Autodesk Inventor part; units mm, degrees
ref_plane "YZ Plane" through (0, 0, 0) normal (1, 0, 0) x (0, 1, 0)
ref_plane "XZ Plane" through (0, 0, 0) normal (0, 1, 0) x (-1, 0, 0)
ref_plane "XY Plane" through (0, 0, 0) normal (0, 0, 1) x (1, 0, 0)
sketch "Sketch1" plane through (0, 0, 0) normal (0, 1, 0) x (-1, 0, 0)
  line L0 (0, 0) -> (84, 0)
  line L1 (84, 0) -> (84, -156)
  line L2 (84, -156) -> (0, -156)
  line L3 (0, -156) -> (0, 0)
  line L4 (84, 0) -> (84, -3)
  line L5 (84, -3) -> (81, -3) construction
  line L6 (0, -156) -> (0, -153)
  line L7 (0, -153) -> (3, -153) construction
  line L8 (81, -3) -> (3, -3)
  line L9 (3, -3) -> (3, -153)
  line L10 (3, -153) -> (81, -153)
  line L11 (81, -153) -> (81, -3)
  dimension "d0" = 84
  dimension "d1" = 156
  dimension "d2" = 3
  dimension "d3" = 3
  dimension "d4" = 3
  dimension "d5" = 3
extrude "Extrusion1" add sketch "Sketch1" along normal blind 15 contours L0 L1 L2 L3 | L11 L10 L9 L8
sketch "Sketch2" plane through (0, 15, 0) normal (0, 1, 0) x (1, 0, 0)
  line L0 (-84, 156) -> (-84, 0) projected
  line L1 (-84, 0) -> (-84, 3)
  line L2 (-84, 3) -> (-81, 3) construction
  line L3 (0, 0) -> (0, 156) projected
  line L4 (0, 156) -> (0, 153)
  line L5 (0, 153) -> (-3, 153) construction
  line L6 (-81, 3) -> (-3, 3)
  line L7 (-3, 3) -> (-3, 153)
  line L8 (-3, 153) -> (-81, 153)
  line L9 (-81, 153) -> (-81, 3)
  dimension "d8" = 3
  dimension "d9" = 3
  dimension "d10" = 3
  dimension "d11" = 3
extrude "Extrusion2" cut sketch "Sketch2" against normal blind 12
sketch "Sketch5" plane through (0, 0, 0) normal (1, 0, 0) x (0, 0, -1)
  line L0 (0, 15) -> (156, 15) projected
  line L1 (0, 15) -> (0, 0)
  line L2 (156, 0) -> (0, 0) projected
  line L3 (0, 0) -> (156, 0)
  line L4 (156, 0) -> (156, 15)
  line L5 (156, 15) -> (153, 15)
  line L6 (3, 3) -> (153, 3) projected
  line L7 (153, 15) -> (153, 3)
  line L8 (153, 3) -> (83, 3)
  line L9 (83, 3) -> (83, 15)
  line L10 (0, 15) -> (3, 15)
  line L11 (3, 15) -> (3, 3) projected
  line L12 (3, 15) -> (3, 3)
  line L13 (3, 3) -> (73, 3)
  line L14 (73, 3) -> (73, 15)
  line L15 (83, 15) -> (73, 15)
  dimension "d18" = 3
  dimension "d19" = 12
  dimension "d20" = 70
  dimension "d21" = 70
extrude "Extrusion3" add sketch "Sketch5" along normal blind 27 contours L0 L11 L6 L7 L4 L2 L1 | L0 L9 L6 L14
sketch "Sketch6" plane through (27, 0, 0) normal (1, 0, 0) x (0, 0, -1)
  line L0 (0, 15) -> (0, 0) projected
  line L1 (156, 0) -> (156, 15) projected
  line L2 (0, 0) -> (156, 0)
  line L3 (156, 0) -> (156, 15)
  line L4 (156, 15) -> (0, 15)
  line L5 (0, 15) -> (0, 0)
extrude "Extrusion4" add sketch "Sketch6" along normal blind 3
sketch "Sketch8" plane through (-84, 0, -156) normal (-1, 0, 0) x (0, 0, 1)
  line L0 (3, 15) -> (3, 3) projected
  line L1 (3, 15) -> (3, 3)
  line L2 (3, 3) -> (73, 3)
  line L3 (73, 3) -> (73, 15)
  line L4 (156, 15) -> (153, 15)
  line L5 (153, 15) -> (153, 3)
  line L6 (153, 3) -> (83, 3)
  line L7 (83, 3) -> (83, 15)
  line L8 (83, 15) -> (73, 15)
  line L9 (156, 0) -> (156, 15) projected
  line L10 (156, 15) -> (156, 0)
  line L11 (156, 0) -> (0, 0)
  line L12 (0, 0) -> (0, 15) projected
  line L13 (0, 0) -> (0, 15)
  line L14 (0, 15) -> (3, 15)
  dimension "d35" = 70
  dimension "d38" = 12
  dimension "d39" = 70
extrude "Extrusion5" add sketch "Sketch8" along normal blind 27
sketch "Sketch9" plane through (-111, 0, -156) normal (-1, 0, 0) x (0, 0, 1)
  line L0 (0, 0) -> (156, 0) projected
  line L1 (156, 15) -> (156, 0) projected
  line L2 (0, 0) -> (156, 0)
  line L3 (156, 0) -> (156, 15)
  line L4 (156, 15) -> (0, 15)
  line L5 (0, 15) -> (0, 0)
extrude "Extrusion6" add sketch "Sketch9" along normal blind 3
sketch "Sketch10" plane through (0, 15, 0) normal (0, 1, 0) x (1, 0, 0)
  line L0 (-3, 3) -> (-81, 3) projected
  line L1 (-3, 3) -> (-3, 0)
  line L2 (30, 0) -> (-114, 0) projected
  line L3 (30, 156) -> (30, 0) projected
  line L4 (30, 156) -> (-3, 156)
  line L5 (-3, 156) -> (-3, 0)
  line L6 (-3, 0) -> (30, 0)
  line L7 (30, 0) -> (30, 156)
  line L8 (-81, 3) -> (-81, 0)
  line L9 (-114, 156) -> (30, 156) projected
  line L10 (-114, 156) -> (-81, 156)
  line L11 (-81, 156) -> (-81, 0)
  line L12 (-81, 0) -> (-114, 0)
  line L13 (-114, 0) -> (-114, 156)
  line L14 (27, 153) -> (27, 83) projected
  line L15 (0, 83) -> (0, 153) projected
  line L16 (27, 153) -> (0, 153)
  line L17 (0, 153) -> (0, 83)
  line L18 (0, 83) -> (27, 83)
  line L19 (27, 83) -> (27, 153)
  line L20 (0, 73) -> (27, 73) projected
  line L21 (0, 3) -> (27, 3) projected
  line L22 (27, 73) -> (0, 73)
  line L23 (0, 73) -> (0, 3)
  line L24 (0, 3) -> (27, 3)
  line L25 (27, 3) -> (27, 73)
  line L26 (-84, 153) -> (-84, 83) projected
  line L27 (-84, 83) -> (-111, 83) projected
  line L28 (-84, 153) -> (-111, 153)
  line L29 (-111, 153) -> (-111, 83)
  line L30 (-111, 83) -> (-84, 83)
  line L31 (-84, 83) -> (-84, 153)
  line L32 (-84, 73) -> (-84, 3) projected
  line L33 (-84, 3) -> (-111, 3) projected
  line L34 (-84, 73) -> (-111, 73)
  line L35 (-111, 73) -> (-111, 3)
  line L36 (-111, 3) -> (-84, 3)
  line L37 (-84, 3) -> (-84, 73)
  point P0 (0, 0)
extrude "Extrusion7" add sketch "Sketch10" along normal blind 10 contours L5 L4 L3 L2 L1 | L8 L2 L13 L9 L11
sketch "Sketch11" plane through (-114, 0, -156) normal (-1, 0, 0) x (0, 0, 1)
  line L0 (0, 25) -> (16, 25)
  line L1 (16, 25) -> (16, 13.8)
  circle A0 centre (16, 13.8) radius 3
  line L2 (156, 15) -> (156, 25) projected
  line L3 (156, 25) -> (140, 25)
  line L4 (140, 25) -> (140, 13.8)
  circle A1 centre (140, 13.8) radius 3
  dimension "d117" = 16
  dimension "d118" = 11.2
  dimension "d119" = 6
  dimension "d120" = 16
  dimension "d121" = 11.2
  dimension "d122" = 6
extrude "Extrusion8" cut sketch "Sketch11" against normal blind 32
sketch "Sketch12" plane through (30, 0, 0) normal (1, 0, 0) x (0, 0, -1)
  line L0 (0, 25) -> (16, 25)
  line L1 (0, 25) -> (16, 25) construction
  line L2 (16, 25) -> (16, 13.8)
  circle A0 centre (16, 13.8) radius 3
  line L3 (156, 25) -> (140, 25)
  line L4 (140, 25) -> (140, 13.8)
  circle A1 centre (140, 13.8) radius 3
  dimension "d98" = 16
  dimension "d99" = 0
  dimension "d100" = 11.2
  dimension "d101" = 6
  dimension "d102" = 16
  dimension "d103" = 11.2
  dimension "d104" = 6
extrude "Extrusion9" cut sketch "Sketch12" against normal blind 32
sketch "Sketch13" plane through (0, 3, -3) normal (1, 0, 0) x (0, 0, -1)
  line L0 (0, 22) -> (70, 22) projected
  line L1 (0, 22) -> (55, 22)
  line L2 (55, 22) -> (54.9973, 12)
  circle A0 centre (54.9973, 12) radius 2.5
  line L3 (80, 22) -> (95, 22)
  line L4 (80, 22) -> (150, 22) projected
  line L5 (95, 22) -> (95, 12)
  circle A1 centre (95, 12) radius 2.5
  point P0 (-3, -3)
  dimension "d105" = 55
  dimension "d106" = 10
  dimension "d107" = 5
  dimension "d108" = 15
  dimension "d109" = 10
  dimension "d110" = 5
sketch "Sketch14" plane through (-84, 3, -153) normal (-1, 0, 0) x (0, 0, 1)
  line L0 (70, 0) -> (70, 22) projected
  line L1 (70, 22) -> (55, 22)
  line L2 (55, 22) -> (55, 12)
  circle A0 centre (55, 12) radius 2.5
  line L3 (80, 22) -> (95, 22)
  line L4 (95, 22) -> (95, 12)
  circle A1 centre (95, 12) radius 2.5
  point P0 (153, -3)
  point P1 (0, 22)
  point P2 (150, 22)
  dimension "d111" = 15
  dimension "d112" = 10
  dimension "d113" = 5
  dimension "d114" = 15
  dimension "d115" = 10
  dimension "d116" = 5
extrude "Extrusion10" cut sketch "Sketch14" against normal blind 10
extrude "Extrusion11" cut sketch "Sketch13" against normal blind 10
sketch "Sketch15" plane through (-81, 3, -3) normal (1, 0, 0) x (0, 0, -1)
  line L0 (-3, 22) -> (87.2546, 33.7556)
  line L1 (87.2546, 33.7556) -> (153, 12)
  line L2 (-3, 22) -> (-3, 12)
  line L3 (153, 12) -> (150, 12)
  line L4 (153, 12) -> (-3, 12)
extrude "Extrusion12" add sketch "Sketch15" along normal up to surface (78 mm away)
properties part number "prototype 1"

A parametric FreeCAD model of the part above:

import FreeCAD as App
import Part
import Sketcher

V = App.Vector
Q = App.Units.Quantity


def add_polygon(sketch, points):
    """Adds a closed chain of lines whose ends are joined by coincident constraints."""
    first, n = sketch.GeometryCount, len(points)
    for a, b in zip(points, points[1:] + points[:1]):
        sketch.addGeometry(Part.LineSegment(App.Vector(*a, 0), App.Vector(*b, 0)), False)
    for i in range(n):
        sketch.addConstraint(Sketcher.Constraint("Coincident", first + i, 2, first + (i + 1) % n, 1))

doc = App.newDocument("Part")
body = doc.addObject("PartDesign::Body", "Body")

sketch1 = body.newObject("Sketcher::SketchObject", "Sketch")
sketch1.AttachmentSupport = (doc.getObject("XZ_Plane"), [""])
sketch1.MapMode = "FlatFace"
add_polygon(sketch1, [(-84, 0), (0, 0), (0, -156), (-84, -156)])
sketch1.addConstraint(Sketcher.Constraint("Horizontal", 0))
sketch1.addConstraint(Sketcher.Constraint("Vertical", 1))
sketch1.addConstraint(Sketcher.Constraint("Horizontal", 2))
sketch1.addConstraint(Sketcher.Constraint("Vertical", 3))
sketch1.addConstraint(Sketcher.Constraint("Coincident", 0, 2, -1, 1))
sketch1.addConstraint(Sketcher.Constraint("DistanceX", 0, 1, 0, 2, Q("84 mm")))
sketch1.addConstraint(Sketcher.Constraint("DistanceY", 1, 2, 1, 1, Q("156 mm")))
pad1 = body.newObject("PartDesign::Pad", "Pad")
pad1.Profile = sketch1
pad1.Length = 15
pad1.Reversed = True

sketch2 = body.newObject("Sketcher::SketchObject", "Sketch001")
sketch2.AttachmentSupport = (doc.getObject("XZ_Plane"), [""])
sketch2.MapMode = "FlatFace"
sketch2.AttachmentOffset = App.Placement(V(0, 0, -15), App.Rotation())
add_polygon(sketch2, [(-81, -153), (-81, -3), (-3, -3), (-3, -153)])
sketch2.addConstraint(Sketcher.Constraint("Vertical", 0))
sketch2.addConstraint(Sketcher.Constraint("Horizontal", 1))
sketch2.addConstraint(Sketcher.Constraint("Vertical", 2))
sketch2.addConstraint(Sketcher.Constraint("Horizontal", 3))
sketch2.addConstraint(Sketcher.Constraint("DistanceY", 0, 2, -1, 1, Q("3 mm")))
sketch2.addConstraint(Sketcher.Constraint("DistanceX", 1, 2, -1, 1, Q("3 mm")))
sketch2.addConstraint(Sketcher.Constraint("DistanceX", 1, 1, 1, 2, Q("78 mm")))
sketch2.addConstraint(Sketcher.Constraint("DistanceY", 0, 1, 0, 2, Q("150 mm")))
pocket1 = body.newObject("PartDesign::Pocket", "Pocket")
pocket1.Profile = sketch2
pocket1.Length = 12
pocket1.Reversed = True

sketch3 = body.newObject("Sketcher::SketchObject", "Sketch002")
sketch3.AttachmentSupport = (doc.getObject("YZ_Plane"), [""])
sketch3.MapMode = "FlatFace"
add_polygon(sketch3, [(15, -3), (15, 0), (0, 0), (0, -156), (15, -156), (15, -153), (3, -153), (3, -83), (15, -83), (15, -73), (3, -73), (3, -3)])
sketch3.addConstraint(Sketcher.Constraint("Vertical", 0))
sketch3.addConstraint(Sketcher.Constraint("Horizontal", 1))
sketch3.addConstraint(Sketcher.Constraint("Vertical", 2))
sketch3.addConstraint(Sketcher.Constraint("Horizontal", 3))
sketch3.addConstraint(Sketcher.Constraint("Vertical", 4))
sketch3.addConstraint(Sketcher.Constraint("Horizontal", 5))
sketch3.addConstraint(Sketcher.Constraint("Vertical", 6))
sketch3.addConstraint(Sketcher.Constraint("Horizontal", 7))
sketch3.addConstraint(Sketcher.Constraint("Vertical", 8))
sketch3.addConstraint(Sketcher.Constraint("Horizontal", 9))
sketch3.addConstraint(Sketcher.Constraint("Vertical", 10))
sketch3.addConstraint(Sketcher.Constraint("Horizontal", 11))
sketch3.addConstraint(Sketcher.Constraint("Coincident", 1, 2, -1, 1))
sketch3.addConstraint(Sketcher.Constraint("Vertical", 0, 2, 3, 2))
sketch3.addConstraint(Sketcher.Constraint("Vertical", 4, 2, 7, 2))
sketch3.addConstraint(Sketcher.Constraint("Vertical", 6, 2, 9, 2))
sketch3.addConstraint(Sketcher.Constraint("Equal", 0, 4))
sketch3.addConstraint(Sketcher.Constraint("Equal", 6, 10))
sketch3.addConstraint(Sketcher.Constraint("DistanceX", 5, 2, 5, 1, Q("12 mm")))
sketch3.addConstraint(Sketcher.Constraint("DistanceY", 0, 1, 0, 2, Q("3 mm")))
sketch3.addConstraint(Sketcher.Constraint("DistanceY", 6, 1, 6, 2, Q("70 mm")))
sketch3.addConstraint(Sketcher.Constraint("DistanceX", -1, 1, 5, 2, Q("3 mm")))
sketch3.addConstraint(Sketcher.Constraint("DistanceY", 2, 2, 2, 1, Q("156 mm")))
pad2 = body.newObject("PartDesign::Pad", "Pad001")
pad2.Profile = sketch3
pad2.Length = 27

sketch4 = body.newObject("Sketcher::SketchObject", "Sketch003")
sketch4.AttachmentSupport = (doc.getObject("YZ_Plane"), [""])
sketch4.MapMode = "FlatFace"
sketch4.AttachmentOffset = App.Placement(V(0, 0, 27), App.Rotation())
add_polygon(sketch4, [(15, -156), (15, 0), (0, 0), (0, -156)])
sketch4.addConstraint(Sketcher.Constraint("Vertical", 0))
sketch4.addConstraint(Sketcher.Constraint("Horizontal", 1))
sketch4.addConstraint(Sketcher.Constraint("Vertical", 2))
sketch4.addConstraint(Sketcher.Constraint("Horizontal", 3))
sketch4.addConstraint(Sketcher.Constraint("Coincident", 1, 2, -1, 1))
sketch4.addConstraint(Sketcher.Constraint("DistanceX", 1, 2, 1, 1, Q("15 mm")))
sketch4.addConstraint(Sketcher.Constraint("DistanceY", 0, 1, 0, 2, Q("156 mm")))
pad3 = body.newObject("PartDesign::Pad", "Pad002")
pad3.Profile = sketch4
pad3.Length = 3

sketch5 = body.newObject("Sketcher::SketchObject", "Sketch004")
sketch5.AttachmentSupport = (doc.getObject("YZ_Plane"), [""])
sketch5.MapMode = "FlatFace"
sketch5.AttachmentOffset = App.Placement(V(0, 0, -84), App.Rotation())
add_polygon(sketch5, [(3, -153), (15, -153), (15, -156), (0, -156), (0, 0), (15, 0), (15, -3), (3, -3), (3, -73), (15, -73), (15, -83), (3, -83)])
sketch5.addConstraint(Sketcher.Constraint("Horizontal", 0))
sketch5.addConstraint(Sketcher.Constraint("Vertical", 1))
sketch5.addConstraint(Sketcher.Constraint("Horizontal", 2))
sketch5.addConstraint(Sketcher.Constraint("Vertical", 3))
sketch5.addConstraint(Sketcher.Constraint("Horizontal", 4))
sketch5.addConstraint(Sketcher.Constraint("Vertical", 5))
sketch5.addConstraint(Sketcher.Constraint("Horizontal", 6))
sketch5.addConstraint(Sketcher.Constraint("Vertical", 7))
sketch5.addConstraint(Sketcher.Constraint("Horizontal", 8))
sketch5.addConstraint(Sketcher.Constraint("Vertical", 9))
sketch5.addConstraint(Sketcher.Constraint("Horizontal", 10))
sketch5.addConstraint(Sketcher.Constraint("Vertical", 11))
sketch5.addConstraint(Sketcher.Constraint("Coincident", 3, 2, -1, 1))
sketch5.addConstraint(Sketcher.Constraint("Vertical", 1, 2, 4, 2))
sketch5.addConstraint(Sketcher.Constraint("Vertical", 5, 2, 8, 2))
sketch5.addConstraint(Sketcher.Constraint("Vertical", 7, 2, 10, 2))
sketch5.addConstraint(Sketcher.Constraint("Equal", 1, 5))
sketch5.addConstraint(Sketcher.Constraint("Equal", 7, 11))
sketch5.addConstraint(Sketcher.Constraint("DistanceX", 0, 1, 0, 2, Q("12 mm")))
sketch5.addConstraint(Sketcher.Constraint("DistanceY", 7, 2, 7, 1, Q("70 mm")))
sketch5.addConstraint(Sketcher.Constraint("DistanceX", 2, 2, 2, 1, Q("15 mm")))
sketch5.addConstraint(Sketcher.Constraint("DistanceY", 1, 2, 1, 1, Q("3 mm")))
sketch5.addConstraint(Sketcher.Constraint("DistanceY", 3, 1, 3, 2, Q("156 mm")))
pad4 = body.newObject("PartDesign::Pad", "Pad003")
pad4.Profile = sketch5
pad4.Length = 27
pad4.Reversed = True

sketch6 = body.newObject("Sketcher::SketchObject", "Sketch005")
sketch6.AttachmentSupport = (doc.getObject("YZ_Plane"), [""])
sketch6.MapMode = "FlatFace"
sketch6.AttachmentOffset = App.Placement(V(0, 0, -111), App.Rotation())
add_polygon(sketch6, [(15, -156), (0, -156), (0, 0), (15, 0)])
sketch6.addConstraint(Sketcher.Constraint("Horizontal", 0))
sketch6.addConstraint(Sketcher.Constraint("Vertical", 1))
sketch6.addConstraint(Sketcher.Constraint("Horizontal", 2))
sketch6.addConstraint(Sketcher.Constraint("Vertical", 3))
sketch6.addConstraint(Sketcher.Constraint("Coincident", 1, 2, -1, 1))
sketch6.addConstraint(Sketcher.Constraint("DistanceX", 0, 2, 0, 1, Q("15 mm")))
sketch6.addConstraint(Sketcher.Constraint("DistanceY", 1, 1, 1, 2, Q("156 mm")))
pad5 = body.newObject("PartDesign::Pad", "Pad004")
pad5.Profile = sketch6
pad5.Length = 3
pad5.Reversed = True

sketch7 = body.newObject("Sketcher::SketchObject", "Sketch006")
sketch7.AttachmentSupport = (doc.getObject("XZ_Plane"), [""])
sketch7.MapMode = "FlatFace"
sketch7.AttachmentOffset = App.Placement(V(0, 0, -15), App.Rotation())
add_polygon(sketch7, [(-3, -156), (-3, 0), (30, 0), (30, -156)])
add_polygon(sketch7, [(0, -3), (0, -73), (27, -73), (27, -3)])
add_polygon(sketch7, [(0, -153), (27, -153), (27, -83), (0, -83)])
add_polygon(sketch7, [(-81, 0), (-81, -156), (-114, -156), (-114, 0)])
add_polygon(sketch7, [(-111, -73), (-84, -73), (-84, -3), (-111, -3)])
add_polygon(sketch7, [(-111, -153), (-84, -153), (-84, -83), (-111, -83)])
sketch7.addConstraint(Sketcher.Constraint("Vertical", 0))
sketch7.addConstraint(Sketcher.Constraint("Horizontal", 1))
sketch7.addConstraint(Sketcher.Constraint("Vertical", 2))
sketch7.addConstraint(Sketcher.Constraint("Horizontal", 3))
sketch7.addConstraint(Sketcher.Constraint("Vertical", 4))
sketch7.addConstraint(Sketcher.Constraint("Horizontal", 5))
sketch7.addConstraint(Sketcher.Constraint("Vertical", 6))
sketch7.addConstraint(Sketcher.Constraint("Horizontal", 7))
sketch7.addConstraint(Sketcher.Constraint("Horizontal", 8))
sketch7.addConstraint(Sketcher.Constraint("Vertical", 9))
sketch7.addConstraint(Sketcher.Constraint("Horizontal", 10))
sketch7.addConstraint(Sketcher.Constraint("Vertical", 11))
sketch7.addConstraint(Sketcher.Constraint("Vertical", 12))
sketch7.addConstraint(Sketcher.Constraint("Horizontal", 13))
sketch7.addConstraint(Sketcher.Constraint("Vertical", 14))
sketch7.addConstraint(Sketcher.Constraint("Horizontal", 15))
sketch7.addConstraint(Sketcher.Constraint("Horizontal", 16))
sketch7.addConstraint(Sketcher.Constraint("Vertical", 17))
sketch7.addConstraint(Sketcher.Constraint("Horizontal", 18))
sketch7.addConstraint(Sketcher.Constraint("Vertical", 19))
sketch7.addConstraint(Sketcher.Constraint("Horizontal", 20))
sketch7.addConstraint(Sketcher.Constraint("Vertical", 21))
sketch7.addConstraint(Sketcher.Constraint("Horizontal", 22))
sketch7.addConstraint(Sketcher.Constraint("Vertical", 23))
sketch7.addConstraint(Sketcher.Constraint("PointOnObject", 0, 2, -1))
sketch7.addConstraint(Sketcher.Constraint("PointOnObject", 4, 2, -2))
sketch7.addConstraint(Sketcher.Constraint("PointOnObject", 10, 2, -2))
sketch7.addConstraint(Sketcher.Constraint("PointOnObject", 14, 2, -1))
sketch7.addConstraint(Sketcher.Constraint("Horizontal", 3, 2, 12, 2))
sketch7.addConstraint(Sketcher.Constraint("Horizontal", 5, 2, 16, 2))
sketch7.addConstraint(Sketcher.Constraint("Horizontal", 7, 2, 17, 2))
sketch7.addConstraint(Sketcher.Constraint("Horizontal", 11, 2, 20, 2))
sketch7.addConstraint(Sketcher.Constraint("Horizontal", 10, 2, 21, 2))
sketch7.addConstraint(Sketcher.Constraint("Vertical", 6, 2, 8, 2))
sketch7.addConstraint(Sketcher.Constraint("Vertical", 17, 2, 20, 2))
sketch7.addConstraint(Sketcher.Constraint("Vertical", 19, 2, 22, 2))
sketch7.addConstraint(Sketcher.Constraint("Equal", 3, 13))
sketch7.addConstraint(Sketcher.Constraint("Equal", 10, 16))
sketch7.addConstraint(Sketcher.Constraint("Equal", 6, 9))
sketch7.addConstraint(Sketcher.Constraint("DistanceX", 1, 1, 1, 2, Q("33 mm")))
sketch7.addConstraint(Sketcher.Constraint("DistanceX", 5, 1, 5, 2, Q("27 mm")))
sketch7.addConstraint(Sketcher.Constraint("DistanceY", 0, 1, 0, 2, Q("156 mm")))
sketch7.addConstraint(Sketcher.Constraint("DistanceY", 4, 2, 4, 1, Q("70 mm")))
sketch7.addConstraint(Sketcher.Constraint("DistanceX", 0, 2, -1, 1, Q("3 mm")))
sketch7.addConstraint(Sketcher.Constraint("DistanceY", 4, 2, -1, 1, Q("73 mm")))
sketch7.addConstraint(Sketcher.Constraint("DistanceY", 8, 2, -1, 1, Q("153 mm")))
sketch7.addConstraint(Sketcher.Constraint("DistanceX", 12, 2, -1, 1, Q("81 mm")))
sketch7.addConstraint(Sketcher.Constraint("DistanceX", 16, 2, -1, 1, Q("84 mm")))
pad6 = body.newObject("PartDesign::Pad", "Pad005")
pad6.Profile = sketch7
pad6.Length = 10
pad6.Reversed = True

sketch8 = body.newObject("Sketcher::SketchObject", "Sketch007")
sketch8.AttachmentSupport = (doc.getObject("YZ_Plane"), [""])
sketch8.MapMode = "FlatFace"
sketch8.AttachmentOffset = App.Placement(V(0, 0, -114), App.Rotation())
sketch8.addGeometry(Part.Circle(V(13.8, -140, 0), V(0, 0, 1), 3), False)
sketch8.addGeometry(Part.Circle(V(13.8, -16, 0), V(0, 0, 1), 3), False)
sketch8.addConstraint(Sketcher.Constraint("Equal", 0, 1))
sketch8.addConstraint(Sketcher.Constraint("Vertical", 0, 3, 1, 3))
sketch8.addConstraint(Sketcher.Constraint("Diameter", 0, Q("6 mm")))
sketch8.addConstraint(Sketcher.Constraint("DistanceY", 1, 3, -1, 1, Q("16 mm")))
sketch8.addConstraint(Sketcher.Constraint("DistanceY", 0, 3, -1, 1, Q("140 mm")))
sketch8.addConstraint(Sketcher.Constraint("DistanceX", -1, 1, 0, 3, Q("13.8 mm")))
pocket2 = body.newObject("PartDesign::Pocket", "Pocket001")
pocket2.Profile = sketch8
pocket2.Length = 32
pocket2.Reversed = True

sketch9 = body.newObject("Sketcher::SketchObject", "Sketch008")
sketch9.AttachmentSupport = (doc.getObject("YZ_Plane"), [""])
sketch9.MapMode = "FlatFace"
sketch9.AttachmentOffset = App.Placement(V(0, 0, 30), App.Rotation())
sketch9.addGeometry(Part.Circle(V(13.8, -16, 0), V(0, 0, 1), 3), False)
sketch9.addGeometry(Part.Circle(V(13.8, -140, 0), V(0, 0, 1), 3), False)
sketch9.addConstraint(Sketcher.Constraint("Equal", 0, 1))
sketch9.addConstraint(Sketcher.Constraint("Vertical", 0, 3, 1, 3))
sketch9.addConstraint(Sketcher.Constraint("Diameter", 0, Q("6 mm")))
sketch9.addConstraint(Sketcher.Constraint("DistanceY", 0, 3, -1, 1, Q("16 mm")))
sketch9.addConstraint(Sketcher.Constraint("DistanceY", 1, 3, -1, 1, Q("140 mm")))
sketch9.addConstraint(Sketcher.Constraint("DistanceX", -1, 1, 0, 3, Q("13.8 mm")))
pocket3 = body.newObject("PartDesign::Pocket", "Pocket002")
pocket3.Profile = sketch9
pocket3.Length = 32

sketch10 = body.newObject("Sketcher::SketchObject", "Sketch009")
sketch10.AttachmentSupport = (doc.getObject("YZ_Plane"), [""])
sketch10.MapMode = "FlatFace"
sketch10.AttachmentOffset = App.Placement(V(0, 0, -84), App.Rotation())
sketch10.addGeometry(Part.Circle(V(15, -98, 0), V(0, 0, 1), 2.5), False)
sketch10.addGeometry(Part.Circle(V(15, -58, 0), V(0, 0, 1), 2.5), False)
sketch10.addConstraint(Sketcher.Constraint("Equal", 0, 1))
sketch10.addConstraint(Sketcher.Constraint("Vertical", 0, 3, 1, 3))
sketch10.addConstraint(Sketcher.Constraint("Diameter", 0, Q("5 mm")))
sketch10.addConstraint(Sketcher.Constraint("DistanceX", -1, 1, 0, 3, Q("15 mm")))
sketch10.addConstraint(Sketcher.Constraint("DistanceY", 0, 3, -1, 1, Q("98 mm")))
sketch10.addConstraint(Sketcher.Constraint("DistanceY", 1, 3, -1, 1, Q("58 mm")))
pocket4 = body.newObject("PartDesign::Pocket", "Pocket003")
pocket4.Profile = sketch10
pocket4.Length = 10
pocket4.Reversed = True

sketch11 = body.newObject("Sketcher::SketchObject", "Sketch010")
sketch11.AttachmentSupport = (doc.getObject("YZ_Plane"), [""])
sketch11.MapMode = "FlatFace"
sketch11.addGeometry(Part.Circle(V(15, -57.9973, 0), V(0, 0, 1), 2.5), False)
sketch11.addGeometry(Part.Circle(V(15, -98, 0), V(0, 0, 1), 2.5), False)
sketch11.addConstraint(Sketcher.Constraint("Equal", 0, 1))
sketch11.addConstraint(Sketcher.Constraint("Vertical", 0, 3, 1, 3))
sketch11.addConstraint(Sketcher.Constraint("Diameter", 0, Q("5 mm")))
sketch11.addConstraint(Sketcher.Constraint("DistanceX", -1, 1, 0, 3, Q("15 mm")))
sketch11.addConstraint(Sketcher.Constraint("DistanceY", 1, 3, -1, 1, Q("98 mm")))
sketch11.addConstraint(Sketcher.Constraint("DistanceY", 0, 3, -1, 1, Q("57.9973 mm")))
pocket5 = body.newObject("PartDesign::Pocket", "Pocket004")
pocket5.Profile = sketch11
pocket5.Length = 10

sketch12 = body.newObject("Sketcher::SketchObject", "Sketch011")
sketch12.AttachmentSupport = (doc.getObject("YZ_Plane"), [""])
sketch12.MapMode = "FlatFace"
sketch12.AttachmentOffset = App.Placement(V(0, 0, -81), App.Rotation())
add_polygon(sketch12, [(36.7556, -90.2546), (25, 0), (15, 0), (15, -156)])
sketch12.addConstraint(Sketcher.Constraint("Horizontal", 1))
sketch12.addConstraint(Sketcher.Constraint("Vertical", 2))
sketch12.addConstraint(Sketcher.Constraint("PointOnObject", 0, 2, -1))
sketch12.addConstraint(Sketcher.Constraint("DistanceX", 1, 2, 1, 1, Q("10 mm")))
sketch12.addConstraint(Sketcher.Constraint("DistanceY", 2, 2, 2, 1, Q("156 mm")))
sketch12.addConstraint(Sketcher.Constraint("DistanceX", -1, 1, 0, 2, Q("25 mm")))
sketch12.addConstraint(Sketcher.Constraint("Angle", 0, Q("97.421 deg")))
sketch12.addConstraint(Sketcher.Constraint("Angle", 3, Q("71.6903 deg")))
pad7 = body.newObject("PartDesign::Pad", "Pad006")
pad7.Profile = sketch12
pad7.Length = 78

doc.recompute()
